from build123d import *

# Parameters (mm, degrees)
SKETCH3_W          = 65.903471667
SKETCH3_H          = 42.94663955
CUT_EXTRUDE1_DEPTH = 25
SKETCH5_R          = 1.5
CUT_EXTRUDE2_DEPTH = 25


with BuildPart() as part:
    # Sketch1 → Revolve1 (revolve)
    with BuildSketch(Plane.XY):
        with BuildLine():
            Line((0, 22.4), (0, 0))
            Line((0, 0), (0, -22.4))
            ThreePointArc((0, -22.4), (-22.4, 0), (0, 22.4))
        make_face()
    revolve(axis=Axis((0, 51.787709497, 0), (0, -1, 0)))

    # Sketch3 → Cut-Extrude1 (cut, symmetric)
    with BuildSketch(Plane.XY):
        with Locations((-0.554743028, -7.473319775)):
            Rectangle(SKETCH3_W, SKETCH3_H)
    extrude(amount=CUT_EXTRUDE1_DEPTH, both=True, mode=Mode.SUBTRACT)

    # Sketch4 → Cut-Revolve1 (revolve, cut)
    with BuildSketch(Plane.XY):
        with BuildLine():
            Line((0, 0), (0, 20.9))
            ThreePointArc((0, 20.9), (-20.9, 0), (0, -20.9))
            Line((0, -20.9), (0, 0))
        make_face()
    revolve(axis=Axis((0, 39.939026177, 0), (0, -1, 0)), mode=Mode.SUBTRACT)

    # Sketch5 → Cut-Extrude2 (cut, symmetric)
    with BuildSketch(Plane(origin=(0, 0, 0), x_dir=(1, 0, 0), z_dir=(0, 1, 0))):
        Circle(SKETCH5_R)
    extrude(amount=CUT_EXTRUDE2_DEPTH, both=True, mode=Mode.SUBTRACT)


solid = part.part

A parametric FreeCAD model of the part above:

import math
import FreeCAD as App
import Part
import Sketcher

V = App.Vector


def add_polygon(sketch, points):
    """Adds a closed chain of lines whose ends are joined by coincident constraints."""
    first, n = sketch.GeometryCount, len(points)
    for a, b in zip(points, points[1:] + points[:1]):
        sketch.addGeometry(Part.LineSegment(App.Vector(*a, 0), App.Vector(*b, 0)), False)
    for i in range(n):
        sketch.addConstraint(Sketcher.Constraint("Coincident", first + i, 2, first + (i + 1) % n, 1))

doc = App.newDocument("Part")
body = doc.addObject("PartDesign::Body", "Body")

# Sketch on XY plane
sketch1 = doc.addObject("Sketcher::SketchObject", "Sketch")
body.addObject(sketch1)
sketch1.AttachmentSupport = (doc.XY_Plane, [""])
sketch1.MapMode = "FlatFace"
sketch1.addGeometry(Part.LineSegment(V(0, -22, 0), V(0, 22, 0)), False)
sketch1.addGeometry(Part.ArcOfCircle(Part.Circle(V(0, 0, 0), V(0, 0, 1), 22), math.radians(90), math.radians(270)), False)
sketch1.addConstraint(Sketcher.Constraint("Coincident", 0, 1, 1, 2))
sketch1.addConstraint(Sketcher.Constraint("Coincident", 1, 1, 0, 2))
sketch1.addConstraint(Sketcher.Constraint("Vertical", 0))
sketch1.addConstraint(Sketcher.Constraint("Coincident", 1, 3, -1, 1))
sketch1.addConstraint(Sketcher.Constraint("PointOnObject", 0, 1, -2))
sketch1.addConstraint(Sketcher.Constraint("Radius", 1, 22.4))
revolution = doc.addObject("PartDesign::Revolution", "Revolution")
body.addObject(revolution)
revolution.Profile = sketch1
revolution.ReferenceAxis = (sketch1, ["V_Axis"])
revolution.Angle = 360

# Sketch on XY plane
sketch2 = doc.addObject("Sketcher::SketchObject", "Sketch001")
body.addObject(sketch2)
sketch2.AttachmentSupport = (doc.XY_Plane, [""])
sketch2.MapMode = "FlatFace"
add_polygon(sketch2, [(-34, 14), (-34, -29), (32, -29), (32, 14)])  # lines 0-3
sketch2.addConstraint(Sketcher.Constraint("Vertical", 0))
sketch2.addConstraint(Sketcher.Constraint("Horizontal", 1))
sketch2.addConstraint(Sketcher.Constraint("Vertical", 2))
sketch2.addConstraint(Sketcher.Constraint("Horizontal", 3))
sketch2.addConstraint(Sketcher.Constraint("DistanceY", -1, 1, 2, 2, 14.0))
sketch2.addConstraint(Sketcher.Constraint("DistanceX", 1, 1, 1, 2, 65.903472))
sketch2.addConstraint(Sketcher.Constraint("DistanceY", 0, 2, 0, 1, 42.94664))
sketch2.addConstraint(Sketcher.Constraint("DistanceX", 0, 2, -1, 1, 33.506479))
pocket1 = doc.addObject("PartDesign::Pocket", "Pocket")
body.addObject(pocket1)
pocket1.Profile = sketch2
pocket1.Length = 50
pocket1.Midplane = True

# Sketch on XY plane
sketch3 = doc.addObject("Sketcher::SketchObject", "Sketch002")
body.addObject(sketch3)
sketch3.AttachmentSupport = (doc.XY_Plane, [""])
sketch3.MapMode = "FlatFace"
sketch3.addGeometry(Part.ArcOfCircle(Part.Circle(V(0, 0, 0), V(0, 0, 1), 21), math.radians(90), math.radians(270)), False)
sketch3.addGeometry(Part.LineSegment(V(0, -21, 0), V(0, 21, 0)), False)
sketch3.addConstraint(Sketcher.Constraint("Coincident", 0, 1, 1, 2))
sketch3.addConstraint(Sketcher.Constraint("Coincident", 1, 1, 0, 2))
sketch3.addConstraint(Sketcher.Constraint("Vertical", 1))
sketch3.addConstraint(Sketcher.Constraint("Coincident", 0, 3, -1, 1))
sketch3.addConstraint(Sketcher.Constraint("PointOnObject", 0, 1, -2))
sketch3.addConstraint(Sketcher.Constraint("Radius", 0, 20.9))
groove = doc.addObject("PartDesign::Groove", "Groove")
body.addObject(groove)
groove.Profile = sketch3
groove.ReferenceAxis = (sketch3, ["V_Axis"])
groove.Angle = 360

# Sketch on XZ plane
sketch4 = doc.addObject("Sketcher::SketchObject", "Sketch003")
body.addObject(sketch4)
sketch4.AttachmentSupport = (doc.XZ_Plane, [""])
sketch4.MapMode = "FlatFace"
sketch4.addGeometry(Part.Circle(V(0, 0, 0), V(0, 0, 1), 1.5), False)
sketch4.addConstraint(Sketcher.Constraint("Coincident", 0, 3, -1, 1))
sketch4.addConstraint(Sketcher.Constraint("Diameter", 0, 3.0))
pocket2 = doc.addObject("PartDesign::Pocket", "Pocket001")
body.addObject(pocket2)
pocket2.Profile = sketch4
pocket2.Length = 50
pocket2.Midplane = True

doc.recompute()
